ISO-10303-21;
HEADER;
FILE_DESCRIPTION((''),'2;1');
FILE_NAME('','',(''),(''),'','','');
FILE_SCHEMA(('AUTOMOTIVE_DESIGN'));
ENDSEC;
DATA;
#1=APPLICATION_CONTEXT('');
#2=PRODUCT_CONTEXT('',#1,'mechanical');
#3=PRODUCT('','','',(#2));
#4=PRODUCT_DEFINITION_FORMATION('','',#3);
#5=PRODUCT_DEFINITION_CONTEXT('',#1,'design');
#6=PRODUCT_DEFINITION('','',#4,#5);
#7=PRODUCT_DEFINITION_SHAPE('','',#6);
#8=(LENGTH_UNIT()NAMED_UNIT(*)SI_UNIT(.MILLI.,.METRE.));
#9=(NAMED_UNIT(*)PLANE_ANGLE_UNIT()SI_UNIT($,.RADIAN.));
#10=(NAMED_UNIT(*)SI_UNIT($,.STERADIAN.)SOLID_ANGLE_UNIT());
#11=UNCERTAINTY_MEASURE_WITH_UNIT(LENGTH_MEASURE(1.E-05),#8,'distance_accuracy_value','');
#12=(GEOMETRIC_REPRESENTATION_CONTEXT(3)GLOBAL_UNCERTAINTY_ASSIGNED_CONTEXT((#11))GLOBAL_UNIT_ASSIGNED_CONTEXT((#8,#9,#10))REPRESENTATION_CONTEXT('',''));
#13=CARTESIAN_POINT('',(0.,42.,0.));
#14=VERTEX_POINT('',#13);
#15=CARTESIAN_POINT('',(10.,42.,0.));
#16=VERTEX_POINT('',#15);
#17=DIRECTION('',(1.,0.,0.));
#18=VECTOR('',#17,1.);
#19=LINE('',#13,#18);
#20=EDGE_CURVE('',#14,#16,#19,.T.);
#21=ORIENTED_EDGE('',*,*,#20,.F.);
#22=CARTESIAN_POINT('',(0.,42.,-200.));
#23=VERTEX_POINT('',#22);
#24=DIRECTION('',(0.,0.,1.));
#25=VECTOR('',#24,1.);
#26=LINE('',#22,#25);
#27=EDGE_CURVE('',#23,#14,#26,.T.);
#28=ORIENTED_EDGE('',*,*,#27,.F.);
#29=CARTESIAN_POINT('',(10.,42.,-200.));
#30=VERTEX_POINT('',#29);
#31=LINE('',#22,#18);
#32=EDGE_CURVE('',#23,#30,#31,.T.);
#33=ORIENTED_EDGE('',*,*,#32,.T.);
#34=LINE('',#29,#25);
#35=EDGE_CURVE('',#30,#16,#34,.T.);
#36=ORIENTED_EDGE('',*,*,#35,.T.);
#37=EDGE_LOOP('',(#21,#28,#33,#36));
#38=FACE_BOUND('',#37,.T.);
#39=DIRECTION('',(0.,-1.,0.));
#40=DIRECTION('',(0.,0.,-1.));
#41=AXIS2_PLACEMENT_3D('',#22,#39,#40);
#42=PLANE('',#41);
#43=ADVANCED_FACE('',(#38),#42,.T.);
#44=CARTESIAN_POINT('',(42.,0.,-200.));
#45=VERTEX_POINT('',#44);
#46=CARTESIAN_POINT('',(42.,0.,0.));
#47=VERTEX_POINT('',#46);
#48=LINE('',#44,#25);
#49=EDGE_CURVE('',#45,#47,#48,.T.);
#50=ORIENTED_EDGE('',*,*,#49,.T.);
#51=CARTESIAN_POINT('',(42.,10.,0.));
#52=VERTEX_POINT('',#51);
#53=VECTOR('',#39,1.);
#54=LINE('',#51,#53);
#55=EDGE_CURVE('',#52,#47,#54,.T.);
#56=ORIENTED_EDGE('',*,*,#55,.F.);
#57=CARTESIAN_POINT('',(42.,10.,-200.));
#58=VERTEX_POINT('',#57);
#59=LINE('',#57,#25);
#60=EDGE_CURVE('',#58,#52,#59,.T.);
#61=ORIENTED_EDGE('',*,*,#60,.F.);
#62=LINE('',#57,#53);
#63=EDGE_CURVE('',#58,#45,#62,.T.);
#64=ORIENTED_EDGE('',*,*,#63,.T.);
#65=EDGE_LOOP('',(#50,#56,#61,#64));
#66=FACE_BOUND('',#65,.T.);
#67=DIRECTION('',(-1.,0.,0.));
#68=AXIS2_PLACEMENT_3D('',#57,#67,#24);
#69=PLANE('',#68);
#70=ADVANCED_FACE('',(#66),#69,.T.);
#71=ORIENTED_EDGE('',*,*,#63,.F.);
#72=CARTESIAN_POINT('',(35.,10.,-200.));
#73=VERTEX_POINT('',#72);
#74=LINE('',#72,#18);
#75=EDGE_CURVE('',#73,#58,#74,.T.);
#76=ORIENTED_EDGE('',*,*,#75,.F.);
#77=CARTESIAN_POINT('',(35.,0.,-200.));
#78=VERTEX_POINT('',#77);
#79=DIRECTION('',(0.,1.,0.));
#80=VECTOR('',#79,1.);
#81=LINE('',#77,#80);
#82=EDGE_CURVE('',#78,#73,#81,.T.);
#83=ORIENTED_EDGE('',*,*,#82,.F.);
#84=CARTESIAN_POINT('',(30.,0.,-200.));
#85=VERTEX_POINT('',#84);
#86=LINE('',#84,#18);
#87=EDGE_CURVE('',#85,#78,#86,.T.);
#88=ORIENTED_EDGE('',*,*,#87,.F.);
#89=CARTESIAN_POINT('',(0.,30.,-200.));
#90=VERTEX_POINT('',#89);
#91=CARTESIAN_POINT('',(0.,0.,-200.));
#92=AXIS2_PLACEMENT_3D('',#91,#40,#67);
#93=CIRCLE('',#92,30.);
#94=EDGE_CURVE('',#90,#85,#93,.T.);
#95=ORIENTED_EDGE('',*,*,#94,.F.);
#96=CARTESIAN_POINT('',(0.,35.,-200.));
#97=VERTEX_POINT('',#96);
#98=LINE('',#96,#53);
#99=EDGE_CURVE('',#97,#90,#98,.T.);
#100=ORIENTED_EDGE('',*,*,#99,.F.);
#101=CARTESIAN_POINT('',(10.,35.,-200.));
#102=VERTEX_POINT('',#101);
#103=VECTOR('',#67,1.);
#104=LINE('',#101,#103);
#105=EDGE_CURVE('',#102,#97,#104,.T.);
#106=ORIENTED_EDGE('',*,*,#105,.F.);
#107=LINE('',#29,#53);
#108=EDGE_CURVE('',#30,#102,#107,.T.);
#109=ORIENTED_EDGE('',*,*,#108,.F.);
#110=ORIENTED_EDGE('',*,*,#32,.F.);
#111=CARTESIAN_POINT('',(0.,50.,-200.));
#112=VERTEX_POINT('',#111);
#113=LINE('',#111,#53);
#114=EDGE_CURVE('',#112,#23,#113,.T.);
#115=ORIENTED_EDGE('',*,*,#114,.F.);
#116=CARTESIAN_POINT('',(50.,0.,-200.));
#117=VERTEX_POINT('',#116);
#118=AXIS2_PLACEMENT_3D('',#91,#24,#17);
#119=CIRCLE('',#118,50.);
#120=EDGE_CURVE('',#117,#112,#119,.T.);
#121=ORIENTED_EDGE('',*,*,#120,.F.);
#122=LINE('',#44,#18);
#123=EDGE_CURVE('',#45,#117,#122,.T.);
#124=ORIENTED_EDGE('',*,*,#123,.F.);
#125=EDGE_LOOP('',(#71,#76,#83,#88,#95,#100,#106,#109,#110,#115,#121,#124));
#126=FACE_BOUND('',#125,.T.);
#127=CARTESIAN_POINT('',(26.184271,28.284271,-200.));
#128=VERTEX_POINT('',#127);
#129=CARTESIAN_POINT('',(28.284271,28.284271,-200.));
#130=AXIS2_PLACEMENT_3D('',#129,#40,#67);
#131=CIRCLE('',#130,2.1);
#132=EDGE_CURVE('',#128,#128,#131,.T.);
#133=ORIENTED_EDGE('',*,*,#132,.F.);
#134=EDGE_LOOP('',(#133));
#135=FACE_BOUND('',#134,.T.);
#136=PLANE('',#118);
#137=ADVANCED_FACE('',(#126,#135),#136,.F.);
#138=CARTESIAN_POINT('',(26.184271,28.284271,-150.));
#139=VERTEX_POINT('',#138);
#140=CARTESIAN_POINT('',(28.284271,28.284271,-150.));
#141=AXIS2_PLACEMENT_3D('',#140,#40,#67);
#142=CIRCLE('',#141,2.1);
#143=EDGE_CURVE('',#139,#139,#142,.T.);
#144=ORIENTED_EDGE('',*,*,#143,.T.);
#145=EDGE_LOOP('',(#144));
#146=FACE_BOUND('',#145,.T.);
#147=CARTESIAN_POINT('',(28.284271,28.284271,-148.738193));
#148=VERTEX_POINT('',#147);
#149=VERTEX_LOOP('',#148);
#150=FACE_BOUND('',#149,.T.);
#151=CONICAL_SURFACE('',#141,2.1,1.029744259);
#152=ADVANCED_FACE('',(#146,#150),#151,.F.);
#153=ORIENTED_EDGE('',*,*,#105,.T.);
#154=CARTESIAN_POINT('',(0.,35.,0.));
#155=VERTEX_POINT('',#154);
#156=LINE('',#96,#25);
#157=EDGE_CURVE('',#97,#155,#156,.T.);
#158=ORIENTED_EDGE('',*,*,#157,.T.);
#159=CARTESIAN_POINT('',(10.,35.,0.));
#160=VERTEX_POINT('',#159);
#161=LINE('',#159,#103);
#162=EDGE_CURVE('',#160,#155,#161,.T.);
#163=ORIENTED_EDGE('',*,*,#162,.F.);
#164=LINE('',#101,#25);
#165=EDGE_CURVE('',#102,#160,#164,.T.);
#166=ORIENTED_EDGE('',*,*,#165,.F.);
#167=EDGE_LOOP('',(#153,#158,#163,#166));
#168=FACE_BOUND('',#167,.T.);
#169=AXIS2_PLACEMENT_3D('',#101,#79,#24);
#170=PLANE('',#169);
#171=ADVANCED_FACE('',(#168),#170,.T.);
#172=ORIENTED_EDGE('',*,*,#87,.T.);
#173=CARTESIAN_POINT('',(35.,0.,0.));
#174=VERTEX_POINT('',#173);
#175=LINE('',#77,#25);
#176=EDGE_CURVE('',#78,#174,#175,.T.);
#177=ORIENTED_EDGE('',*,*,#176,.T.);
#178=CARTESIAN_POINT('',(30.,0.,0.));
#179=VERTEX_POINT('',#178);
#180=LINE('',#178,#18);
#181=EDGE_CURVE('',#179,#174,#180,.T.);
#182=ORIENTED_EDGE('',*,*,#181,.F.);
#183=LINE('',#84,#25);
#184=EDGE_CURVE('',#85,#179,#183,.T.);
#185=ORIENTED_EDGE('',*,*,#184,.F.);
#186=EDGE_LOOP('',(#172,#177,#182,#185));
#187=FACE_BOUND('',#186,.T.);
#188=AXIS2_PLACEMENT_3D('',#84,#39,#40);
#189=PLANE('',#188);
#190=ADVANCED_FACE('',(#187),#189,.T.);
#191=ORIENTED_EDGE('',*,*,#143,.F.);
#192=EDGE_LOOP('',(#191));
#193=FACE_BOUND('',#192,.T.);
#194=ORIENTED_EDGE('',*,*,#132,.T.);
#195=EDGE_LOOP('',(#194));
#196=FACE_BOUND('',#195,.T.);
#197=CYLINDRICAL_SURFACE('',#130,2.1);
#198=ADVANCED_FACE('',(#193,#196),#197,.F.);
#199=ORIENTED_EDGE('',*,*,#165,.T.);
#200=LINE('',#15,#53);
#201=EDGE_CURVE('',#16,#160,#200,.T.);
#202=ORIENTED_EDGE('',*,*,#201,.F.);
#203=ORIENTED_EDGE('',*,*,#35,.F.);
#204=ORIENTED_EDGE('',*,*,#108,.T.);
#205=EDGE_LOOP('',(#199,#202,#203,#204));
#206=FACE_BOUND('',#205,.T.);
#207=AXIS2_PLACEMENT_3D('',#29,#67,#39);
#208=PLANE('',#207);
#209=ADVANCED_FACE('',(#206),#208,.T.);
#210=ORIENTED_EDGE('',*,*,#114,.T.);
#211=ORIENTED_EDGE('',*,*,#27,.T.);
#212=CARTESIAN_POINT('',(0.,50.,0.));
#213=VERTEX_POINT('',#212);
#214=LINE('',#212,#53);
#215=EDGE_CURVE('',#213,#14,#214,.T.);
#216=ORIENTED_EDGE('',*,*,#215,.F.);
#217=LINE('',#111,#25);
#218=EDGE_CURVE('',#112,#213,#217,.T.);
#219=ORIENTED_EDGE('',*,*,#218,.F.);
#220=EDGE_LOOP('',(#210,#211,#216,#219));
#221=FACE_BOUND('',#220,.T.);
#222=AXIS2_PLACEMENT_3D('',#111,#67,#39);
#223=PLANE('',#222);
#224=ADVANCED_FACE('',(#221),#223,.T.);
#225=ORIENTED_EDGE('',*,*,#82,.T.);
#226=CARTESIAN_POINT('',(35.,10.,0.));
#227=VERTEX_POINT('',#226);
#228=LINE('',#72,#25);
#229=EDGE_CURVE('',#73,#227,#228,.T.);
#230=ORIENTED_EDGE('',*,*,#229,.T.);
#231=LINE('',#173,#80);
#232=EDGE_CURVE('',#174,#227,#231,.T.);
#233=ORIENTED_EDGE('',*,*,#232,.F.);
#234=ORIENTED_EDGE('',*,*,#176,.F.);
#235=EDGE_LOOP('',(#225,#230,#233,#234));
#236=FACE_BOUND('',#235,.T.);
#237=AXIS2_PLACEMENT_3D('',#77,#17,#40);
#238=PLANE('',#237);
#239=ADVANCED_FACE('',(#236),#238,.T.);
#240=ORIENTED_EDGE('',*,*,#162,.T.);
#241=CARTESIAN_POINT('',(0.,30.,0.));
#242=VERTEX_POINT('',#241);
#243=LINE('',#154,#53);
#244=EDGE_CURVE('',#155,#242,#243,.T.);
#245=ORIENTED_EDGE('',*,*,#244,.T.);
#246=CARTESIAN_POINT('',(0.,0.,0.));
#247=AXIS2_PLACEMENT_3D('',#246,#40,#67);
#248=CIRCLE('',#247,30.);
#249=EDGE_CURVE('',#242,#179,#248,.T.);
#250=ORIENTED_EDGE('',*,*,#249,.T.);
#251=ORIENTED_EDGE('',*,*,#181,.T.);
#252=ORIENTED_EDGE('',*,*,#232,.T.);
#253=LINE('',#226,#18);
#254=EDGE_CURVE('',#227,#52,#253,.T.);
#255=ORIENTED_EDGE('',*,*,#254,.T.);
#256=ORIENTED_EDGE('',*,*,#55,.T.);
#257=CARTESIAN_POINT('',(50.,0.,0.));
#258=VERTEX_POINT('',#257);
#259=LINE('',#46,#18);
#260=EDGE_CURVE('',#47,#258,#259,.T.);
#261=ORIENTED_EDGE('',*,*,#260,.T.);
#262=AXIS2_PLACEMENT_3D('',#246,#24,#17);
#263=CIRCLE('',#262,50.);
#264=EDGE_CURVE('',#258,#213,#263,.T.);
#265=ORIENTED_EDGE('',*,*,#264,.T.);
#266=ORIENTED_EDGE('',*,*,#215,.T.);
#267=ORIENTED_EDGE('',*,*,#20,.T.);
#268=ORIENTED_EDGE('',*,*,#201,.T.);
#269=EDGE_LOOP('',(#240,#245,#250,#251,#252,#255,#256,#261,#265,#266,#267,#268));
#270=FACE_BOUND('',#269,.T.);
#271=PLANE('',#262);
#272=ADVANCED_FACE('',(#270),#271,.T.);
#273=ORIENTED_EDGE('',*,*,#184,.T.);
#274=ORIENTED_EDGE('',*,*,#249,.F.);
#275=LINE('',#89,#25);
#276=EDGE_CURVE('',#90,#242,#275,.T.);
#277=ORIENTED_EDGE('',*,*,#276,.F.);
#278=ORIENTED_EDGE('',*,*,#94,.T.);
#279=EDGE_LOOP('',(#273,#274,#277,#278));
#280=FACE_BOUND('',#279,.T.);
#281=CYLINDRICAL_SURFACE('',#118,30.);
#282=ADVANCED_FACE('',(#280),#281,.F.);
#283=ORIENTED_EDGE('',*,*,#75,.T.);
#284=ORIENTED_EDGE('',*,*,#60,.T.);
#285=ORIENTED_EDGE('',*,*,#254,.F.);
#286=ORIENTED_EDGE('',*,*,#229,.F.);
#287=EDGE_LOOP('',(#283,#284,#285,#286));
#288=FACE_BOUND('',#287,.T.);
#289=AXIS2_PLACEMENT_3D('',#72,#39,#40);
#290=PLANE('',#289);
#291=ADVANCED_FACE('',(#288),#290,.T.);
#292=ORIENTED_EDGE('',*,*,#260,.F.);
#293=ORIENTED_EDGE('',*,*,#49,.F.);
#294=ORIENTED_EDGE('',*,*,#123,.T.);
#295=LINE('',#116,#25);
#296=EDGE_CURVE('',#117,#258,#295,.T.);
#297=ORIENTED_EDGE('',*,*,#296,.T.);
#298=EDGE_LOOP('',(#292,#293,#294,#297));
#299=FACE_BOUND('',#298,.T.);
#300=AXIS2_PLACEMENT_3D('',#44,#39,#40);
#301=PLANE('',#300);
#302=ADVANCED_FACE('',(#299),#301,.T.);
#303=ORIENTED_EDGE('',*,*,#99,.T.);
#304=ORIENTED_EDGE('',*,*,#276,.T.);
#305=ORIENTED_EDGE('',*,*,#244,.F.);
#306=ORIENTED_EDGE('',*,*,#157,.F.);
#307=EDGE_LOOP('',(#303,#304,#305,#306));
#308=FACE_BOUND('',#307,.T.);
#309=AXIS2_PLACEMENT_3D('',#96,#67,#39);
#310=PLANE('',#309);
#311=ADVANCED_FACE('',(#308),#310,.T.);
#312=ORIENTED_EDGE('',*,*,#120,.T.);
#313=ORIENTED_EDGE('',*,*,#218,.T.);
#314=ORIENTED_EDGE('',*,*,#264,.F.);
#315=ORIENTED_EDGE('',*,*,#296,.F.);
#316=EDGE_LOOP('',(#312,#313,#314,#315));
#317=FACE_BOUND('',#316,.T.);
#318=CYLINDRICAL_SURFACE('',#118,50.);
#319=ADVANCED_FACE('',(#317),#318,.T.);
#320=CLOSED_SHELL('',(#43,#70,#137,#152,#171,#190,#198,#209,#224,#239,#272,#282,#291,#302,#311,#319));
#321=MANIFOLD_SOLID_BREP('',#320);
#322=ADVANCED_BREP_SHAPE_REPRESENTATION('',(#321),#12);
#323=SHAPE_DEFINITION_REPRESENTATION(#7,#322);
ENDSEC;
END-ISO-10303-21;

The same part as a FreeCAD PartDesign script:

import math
import FreeCAD as App
import Part
import Sketcher
from FreeCAD import Vector

doc = App.newDocument("Part")
body = doc.addObject("PartDesign::Body", "Body")

# Sketch on XY plane
sketch1 = doc.addObject("Sketcher::SketchObject", "Sketch")
body.addObject(sketch1)
sketch1.AttachmentSupport = (doc.XY_Plane, [""])
sketch1.MapMode = "FlatFace"
sketch1.addGeometry([
    Part.LineSegment(Vector(30, 0, 0), Vector(35, 0, 0)),  # 0
    Part.LineSegment(Vector(35, 0, 0), Vector(35, 10, 0)),  # 1
    Part.LineSegment(Vector(35, 10, 0), Vector(42, 10, 0)),  # 2
    Part.LineSegment(Vector(42, 10, 0), Vector(42, 0, 0)),  # 3
    Part.LineSegment(Vector(42, 0, 0), Vector(50, 0, 0)),  # 4
    Part.ArcOfCircle(Part.Circle(Vector(0, 0, 0), Vector(0, 0, 1), 50), math.radians(0), math.radians(90)),  # 5
    Part.LineSegment(Vector(0, 50, 0), Vector(0, 42, 0)),  # 6
    Part.LineSegment(Vector(0, 42, 0), Vector(10, 42, 0)),  # 7
    Part.LineSegment(Vector(10, 42, 0), Vector(10, 35, 0)),  # 8
    Part.LineSegment(Vector(10, 35, 0), Vector(0, 35, 0)),  # 9
    Part.LineSegment(Vector(0, 35, 0), Vector(0, 30, 0)),  # 10
    Part.ArcOfCircle(Part.Circle(Vector(0, 0, 0), Vector(0, 0, 1), 30), math.radians(0), math.radians(90)),  # 11
], False)
sketch1.addConstraint([
    Sketcher.Constraint("Coincident", 0, 2, 1, 1),
    Sketcher.Constraint("Coincident", 1, 2, 2, 1),
    Sketcher.Constraint("Coincident", 2, 2, 3, 1),
    Sketcher.Constraint("Coincident", 3, 2, 4, 1),
    Sketcher.Constraint("Coincident", 4, 2, 5, 1),
    Sketcher.Constraint("Coincident", 5, 2, 6, 1),
    Sketcher.Constraint("Coincident", 6, 2, 7, 1),
    Sketcher.Constraint("Coincident", 7, 2, 8, 1),
    Sketcher.Constraint("Coincident", 8, 2, 9, 1),
    Sketcher.Constraint("Coincident", 9, 2, 10, 1),
    Sketcher.Constraint("Coincident", 10, 2, 11, 2),
    Sketcher.Constraint("Coincident", 11, 1, 0, 1),
    Sketcher.Constraint("Horizontal", 0),
    Sketcher.Constraint("Vertical", 1),
    Sketcher.Constraint("Horizontal", 2),
    Sketcher.Constraint("Vertical", 3),
    Sketcher.Constraint("Horizontal", 4),
    Sketcher.Constraint("Vertical", 6),
    Sketcher.Constraint("Horizontal", 7),
    Sketcher.Constraint("Vertical", 8),
    Sketcher.Constraint("Horizontal", 9),
    Sketcher.Constraint("Vertical", 10),
    Sketcher.Constraint("Coincident", 5, 3, -1, 1),
    Sketcher.Constraint("Coincident", 11, 3, -1, 1),
    Sketcher.Constraint("PointOnObject", 0, 2, -1),
    Sketcher.Constraint("PointOnObject", 3, 2, -1),
    Sketcher.Constraint("PointOnObject", 5, 2, -2),
    Sketcher.Constraint("PointOnObject", 9, 2, -2),
    Sketcher.Constraint("Equal", 9, 1),
    Sketcher.Constraint("Equal", 4, 6),
    Sketcher.Constraint("Equal", 2, 8),
    Sketcher.Constraint("Radius", 5, 50.0),
    Sketcher.Constraint("Radius", 11, 30.0),
    Sketcher.Constraint("DistanceX", 0, 1, 0, 2, 5.0),
    Sketcher.Constraint("DistanceX", 2, 1, 2, 2, 7.0),
    Sketcher.Constraint("DistanceX", 7, 1, 7, 2, 10.0),
])
pad1 = doc.addObject("PartDesign::Pad", "Pad")
body.addObject(pad1)
pad1.Profile = sketch1
pad1.Length = 200
pad1.Reversed = True

# Sketch on XY plane
sketch2 = doc.addObject("Sketcher::SketchObject", "Sketch001")
body.addObject(sketch2)
sketch2.AttachmentSupport = (doc.XY_Plane, [""])
sketch2.MapMode = "FlatFace"
sketch2.AttachmentOffset = App.Placement(Vector(0, 0, -200), App.Rotation())
sketch2.addGeometry(Part.Circle(Vector(28.3, 28.3, 0), Vector(0, 0, 1), 2.1), False)
sketch2.addConstraint([
    Sketcher.Constraint("Diameter", 0, 4.2),
    Sketcher.Constraint("DistanceX", -1, 1, 0, 3, 28.284271),
    Sketcher.Constraint("DistanceY", -1, 1, 0, 3, 28.284271),
])
doc.recompute()
hole = doc.addObject("PartDesign::Hole", "Hole")
body.addObject(hole)
hole.Profile = sketch2
hole.ThreadType = "None"
hole.Diameter = 4.2
hole.DepthType = "Dimension"
hole.Depth = 50
hole.DrillPoint = "Angled"
hole.DrillPointAngle = 118
hole.Reversed = True

doc.recompute()
